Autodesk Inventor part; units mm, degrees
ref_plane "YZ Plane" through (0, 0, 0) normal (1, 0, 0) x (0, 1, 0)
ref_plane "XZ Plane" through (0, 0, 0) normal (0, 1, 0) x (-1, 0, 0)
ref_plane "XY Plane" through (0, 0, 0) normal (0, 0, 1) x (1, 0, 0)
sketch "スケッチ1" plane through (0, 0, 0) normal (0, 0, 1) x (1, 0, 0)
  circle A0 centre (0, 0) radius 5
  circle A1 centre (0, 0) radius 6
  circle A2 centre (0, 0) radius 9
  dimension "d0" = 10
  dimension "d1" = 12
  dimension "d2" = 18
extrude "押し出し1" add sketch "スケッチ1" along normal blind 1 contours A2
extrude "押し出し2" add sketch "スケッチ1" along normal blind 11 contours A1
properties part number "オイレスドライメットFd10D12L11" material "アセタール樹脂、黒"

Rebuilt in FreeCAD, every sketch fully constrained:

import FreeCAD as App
import Part
import Sketcher
from FreeCAD import Vector

doc = App.newDocument("Part")
params = doc.addObject("Spreadsheet::Sheet", "Params")
for row, (alias, value) in enumerate([
    ("sketch1_diameter", "18 mm"),
    ("sketch1_diameter2", "12 mm"),
    ("pad1_length", "1 mm"),
    ("sketch2_diameter", "12 mm"),
    ("sketch2_diameter2", "10 mm"),
    ("pad2_length", "11 mm"),
], start=1):
    params.set(f"A{row}", alias)
    params.set(f"B{row}", "=" + value)
    params.setAlias(f"B{row}", alias)

body = doc.addObject("PartDesign::Body", "Body")

# Sketch on XY plane
sketch1 = body.newObject("Sketcher::SketchObject", "Sketch")
sketch1.AttachmentSupport = (doc.getObject("XY_Plane"), [""])
sketch1.MapMode = "FlatFace"
sketch1.addGeometry(Part.Circle(Vector(0, 0, 0), Vector(0, 0, 1), 9), False)
sketch1.addGeometry(Part.Circle(Vector(0, 0, 0), Vector(0, 0, 1), 6), False)
sketch1.addConstraint(Sketcher.Constraint("Coincident", 0, 3, -1, 1))
sketch1.addConstraint(Sketcher.Constraint("Coincident", 1, 3, -1, 1))
sketch1.addConstraint(Sketcher.Constraint("Diameter", 0, 18.0))
sketch1.addConstraint(Sketcher.Constraint("Diameter", 1, 12.0))
sketch1.setExpression("Constraints[2]", "Params.sketch1_diameter")
sketch1.setExpression("Constraints[3]", "Params.sketch1_diameter2")
pad1 = body.newObject("PartDesign::Pad", "Pad")
pad1.Profile = sketch1
pad1.setExpression("Length", "Params.pad1_length")

# Sketch on XY plane
sketch2 = body.newObject("Sketcher::SketchObject", "Sketch001")
sketch2.AttachmentSupport = (doc.getObject("XY_Plane"), [""])
sketch2.MapMode = "FlatFace"
sketch2.addGeometry(Part.Circle(Vector(0, 0, 0), Vector(0, 0, 1), 6), False)
sketch2.addGeometry(Part.Circle(Vector(0, 0, 0), Vector(0, 0, 1), 5), False)
sketch2.addConstraint(Sketcher.Constraint("Coincident", 0, 3, -1, 1))
sketch2.addConstraint(Sketcher.Constraint("Coincident", 1, 3, -1, 1))
sketch2.addConstraint(Sketcher.Constraint("Diameter", 0, 12.0))
sketch2.addConstraint(Sketcher.Constraint("Diameter", 1, 10.0))
sketch2.setExpression("Constraints[2]", "Params.sketch2_diameter")
sketch2.setExpression("Constraints[3]", "Params.sketch2_diameter2")
pad2 = body.newObject("PartDesign::Pad", "Pad001")
pad2.Profile = sketch2
pad2.setExpression("Length", "Params.pad2_length")

doc.recompute()
